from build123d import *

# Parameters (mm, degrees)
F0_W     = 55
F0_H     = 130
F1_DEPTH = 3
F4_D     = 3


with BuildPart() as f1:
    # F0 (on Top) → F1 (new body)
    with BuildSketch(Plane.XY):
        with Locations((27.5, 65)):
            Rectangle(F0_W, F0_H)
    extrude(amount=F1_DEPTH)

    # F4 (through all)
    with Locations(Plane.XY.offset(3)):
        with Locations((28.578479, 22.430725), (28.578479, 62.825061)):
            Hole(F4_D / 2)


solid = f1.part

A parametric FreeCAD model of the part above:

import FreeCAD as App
import Part
import Sketcher
from FreeCAD import Vector

doc = App.newDocument("Part")
params = doc.addObject("Spreadsheet::Sheet", "Params")
for row, (alias, value) in enumerate([
    ("sketch1_width", "55 mm"),
    ("sketch1_height", "130 mm"),
    ("pad1_length", "3 mm"),
    ("sketch2_diameter", "3 mm"),
    ("hole_diameter", "3 mm"),
], start=1):
    params.set(f"A{row}", alias)
    params.set(f"B{row}", "=" + value)
    params.setAlias(f"B{row}", alias)

body = doc.addObject("PartDesign::Body", "Body")

# Sketch on XY plane
sketch1 = doc.addObject("Sketcher::SketchObject", "Sketch")
body.addObject(sketch1)
sketch1.AttachmentSupport = (doc.XY_Plane, [""])
sketch1.MapMode = "FlatFace"
sketch1.addGeometry([
    Part.LineSegment(Vector(0, 130, 0), Vector(0, 0, 0)),
    Part.LineSegment(Vector(0, 0, 0), Vector(55, 0, 0)),
    Part.LineSegment(Vector(55, 0, 0), Vector(55, 130, 0)),
    Part.LineSegment(Vector(55, 130, 0), Vector(0, 130, 0)),
], False)
sketch1.addConstraint([
    Sketcher.Constraint("Coincident", 0, 2, 1, 1),
    Sketcher.Constraint("Coincident", 1, 2, 2, 1),
    Sketcher.Constraint("Coincident", 2, 2, 3, 1),
    Sketcher.Constraint("Coincident", 3, 2, 0, 1),
    Sketcher.Constraint("Vertical", 0),
    Sketcher.Constraint("Horizontal", 1),
    Sketcher.Constraint("Vertical", 2),
    Sketcher.Constraint("Horizontal", 3),
    Sketcher.Constraint("Coincident", 0, 2, -1, 1),
    Sketcher.Constraint("DistanceX", 1, 1, 1, 2, 55.0),
    Sketcher.Constraint("DistanceY", 0, 2, 0, 1, 130.0),
])
sketch1.setExpression("Constraints[9]", "Params.sketch1_width")
sketch1.setExpression("Constraints[10]", "Params.sketch1_height")
pad1 = doc.addObject("PartDesign::Pad", "Pad")
body.addObject(pad1)
pad1.Profile = sketch1
pad1.setExpression("Length", "Params.pad1_length")

# Sketch on XY plane
sketch2 = doc.addObject("Sketcher::SketchObject", "Sketch001")
body.addObject(sketch2)
sketch2.AttachmentSupport = (doc.XY_Plane, [""])
sketch2.MapMode = "FlatFace"
sketch2.AttachmentOffset = App.Placement(Vector(0, 0, 3), App.Rotation())
sketch2.addGeometry([
    Part.Circle(Vector(28.6, 22.4, 0), Vector(0, 0, 1), 1.5),
    Part.Circle(Vector(28.6, 62.8, 0), Vector(0, 0, 1), 1.5),
], False)
sketch2.addConstraint([
    Sketcher.Constraint("Equal", 0, 1),
    Sketcher.Constraint("Vertical", 0, 3, 1, 3),
    Sketcher.Constraint("Diameter", 0, 3.0),
    Sketcher.Constraint("DistanceX", -1, 1, 0, 3, 28.578479),
    Sketcher.Constraint("DistanceY", -1, 1, 1, 3, 62.825061),
    Sketcher.Constraint("DistanceY", -1, 1, 0, 3, 22.430725),
])
sketch2.setExpression("Constraints[2]", "Params.sketch2_diameter")
doc.recompute()
hole = doc.addObject("PartDesign::Hole", "Hole")
body.addObject(hole)
hole.Profile = sketch2
hole.ThreadType = "None"
hole.setExpression("Diameter", "Params.hole_diameter")
hole.DepthType = "ThroughAll"

doc.recompute()
